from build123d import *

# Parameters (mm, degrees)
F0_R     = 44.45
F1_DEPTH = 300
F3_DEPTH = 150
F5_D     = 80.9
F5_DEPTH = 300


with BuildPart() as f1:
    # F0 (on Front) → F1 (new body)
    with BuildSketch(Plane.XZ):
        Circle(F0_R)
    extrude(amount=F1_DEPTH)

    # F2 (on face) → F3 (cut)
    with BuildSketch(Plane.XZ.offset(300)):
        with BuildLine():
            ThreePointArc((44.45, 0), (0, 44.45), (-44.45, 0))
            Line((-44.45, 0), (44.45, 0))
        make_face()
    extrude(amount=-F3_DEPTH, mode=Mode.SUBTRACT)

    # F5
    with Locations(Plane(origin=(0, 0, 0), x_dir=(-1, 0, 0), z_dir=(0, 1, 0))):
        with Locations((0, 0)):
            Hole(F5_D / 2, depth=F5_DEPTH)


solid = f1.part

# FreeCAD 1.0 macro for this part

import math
import FreeCAD as App
import Part
import Sketcher

V = App.Vector

doc = App.newDocument("Part")
body = doc.addObject("PartDesign::Body", "Body")

# Sketch on XZ plane
sketch1 = body.newObject("Sketcher::SketchObject", "Sketch")
sketch1.AttachmentSupport = (doc.getObject("XZ_Plane"), [""])
sketch1.MapMode = "FlatFace"
sketch1.addGeometry(Part.Circle(V(0, 0, 0), V(0, 0, 1), 44.45), False)
sketch1.addConstraint([
    Sketcher.Constraint("Coincident", 0, 3, -1, 1),
    Sketcher.Constraint("Diameter", 0, 88.9),
])
pad1 = body.newObject("PartDesign::Pad", "Pad")
pad1.Profile = sketch1
pad1.Length = 300

# Sketch on XZ plane
sketch2 = body.newObject("Sketcher::SketchObject", "Sketch001")
sketch2.AttachmentSupport = (doc.getObject("XZ_Plane"), [""])
sketch2.MapMode = "FlatFace"
sketch2.AttachmentOffset = App.Placement(V(0, 0, 300), App.Rotation())
sketch2.addGeometry([
    Part.ArcOfCircle(Part.Circle(V(0, 0, 0), V(0, 0, 1), 44.45), math.radians(0), math.radians(180)),
    Part.LineSegment(V(-44.45, 0, 0), V(44.45, 0, 0)),
], False)
sketch2.addConstraint([
    Sketcher.Constraint("Coincident", 0, 1, 1, 2),
    Sketcher.Constraint("Coincident", 1, 1, 0, 2),
    Sketcher.Constraint("Horizontal", 1),
    Sketcher.Constraint("Coincident", 0, 3, -1, 1),
    Sketcher.Constraint("PointOnObject", 0, 1, -1),
    Sketcher.Constraint("Radius", 0, 44.45),
])
pocket1 = body.newObject("PartDesign::Pocket", "Pocket")
pocket1.Profile = sketch2
pocket1.Length = 150

# Sketch on XZ plane
sketch3 = body.newObject("Sketcher::SketchObject", "Sketch002")
sketch3.AttachmentSupport = (doc.getObject("XZ_Plane"), [""])
sketch3.MapMode = "FlatFace"
sketch3.addGeometry(Part.Circle(V(0, 0, 0), V(0, 0, 1), 40.45), False)
sketch3.addConstraint([
    Sketcher.Constraint("Coincident", 0, 3, -1, 1),
    Sketcher.Constraint("Diameter", 0, 80.9),
])
doc.recompute()
hole = body.newObject("PartDesign::Hole", "Hole")
hole.Profile = sketch3
hole.ThreadType = "None"
hole.Diameter = 80.9
hole.DepthType = "Dimension"
hole.Depth = 300
hole.DrillPoint = "Flat"
hole.Reversed = True

doc.recompute()
